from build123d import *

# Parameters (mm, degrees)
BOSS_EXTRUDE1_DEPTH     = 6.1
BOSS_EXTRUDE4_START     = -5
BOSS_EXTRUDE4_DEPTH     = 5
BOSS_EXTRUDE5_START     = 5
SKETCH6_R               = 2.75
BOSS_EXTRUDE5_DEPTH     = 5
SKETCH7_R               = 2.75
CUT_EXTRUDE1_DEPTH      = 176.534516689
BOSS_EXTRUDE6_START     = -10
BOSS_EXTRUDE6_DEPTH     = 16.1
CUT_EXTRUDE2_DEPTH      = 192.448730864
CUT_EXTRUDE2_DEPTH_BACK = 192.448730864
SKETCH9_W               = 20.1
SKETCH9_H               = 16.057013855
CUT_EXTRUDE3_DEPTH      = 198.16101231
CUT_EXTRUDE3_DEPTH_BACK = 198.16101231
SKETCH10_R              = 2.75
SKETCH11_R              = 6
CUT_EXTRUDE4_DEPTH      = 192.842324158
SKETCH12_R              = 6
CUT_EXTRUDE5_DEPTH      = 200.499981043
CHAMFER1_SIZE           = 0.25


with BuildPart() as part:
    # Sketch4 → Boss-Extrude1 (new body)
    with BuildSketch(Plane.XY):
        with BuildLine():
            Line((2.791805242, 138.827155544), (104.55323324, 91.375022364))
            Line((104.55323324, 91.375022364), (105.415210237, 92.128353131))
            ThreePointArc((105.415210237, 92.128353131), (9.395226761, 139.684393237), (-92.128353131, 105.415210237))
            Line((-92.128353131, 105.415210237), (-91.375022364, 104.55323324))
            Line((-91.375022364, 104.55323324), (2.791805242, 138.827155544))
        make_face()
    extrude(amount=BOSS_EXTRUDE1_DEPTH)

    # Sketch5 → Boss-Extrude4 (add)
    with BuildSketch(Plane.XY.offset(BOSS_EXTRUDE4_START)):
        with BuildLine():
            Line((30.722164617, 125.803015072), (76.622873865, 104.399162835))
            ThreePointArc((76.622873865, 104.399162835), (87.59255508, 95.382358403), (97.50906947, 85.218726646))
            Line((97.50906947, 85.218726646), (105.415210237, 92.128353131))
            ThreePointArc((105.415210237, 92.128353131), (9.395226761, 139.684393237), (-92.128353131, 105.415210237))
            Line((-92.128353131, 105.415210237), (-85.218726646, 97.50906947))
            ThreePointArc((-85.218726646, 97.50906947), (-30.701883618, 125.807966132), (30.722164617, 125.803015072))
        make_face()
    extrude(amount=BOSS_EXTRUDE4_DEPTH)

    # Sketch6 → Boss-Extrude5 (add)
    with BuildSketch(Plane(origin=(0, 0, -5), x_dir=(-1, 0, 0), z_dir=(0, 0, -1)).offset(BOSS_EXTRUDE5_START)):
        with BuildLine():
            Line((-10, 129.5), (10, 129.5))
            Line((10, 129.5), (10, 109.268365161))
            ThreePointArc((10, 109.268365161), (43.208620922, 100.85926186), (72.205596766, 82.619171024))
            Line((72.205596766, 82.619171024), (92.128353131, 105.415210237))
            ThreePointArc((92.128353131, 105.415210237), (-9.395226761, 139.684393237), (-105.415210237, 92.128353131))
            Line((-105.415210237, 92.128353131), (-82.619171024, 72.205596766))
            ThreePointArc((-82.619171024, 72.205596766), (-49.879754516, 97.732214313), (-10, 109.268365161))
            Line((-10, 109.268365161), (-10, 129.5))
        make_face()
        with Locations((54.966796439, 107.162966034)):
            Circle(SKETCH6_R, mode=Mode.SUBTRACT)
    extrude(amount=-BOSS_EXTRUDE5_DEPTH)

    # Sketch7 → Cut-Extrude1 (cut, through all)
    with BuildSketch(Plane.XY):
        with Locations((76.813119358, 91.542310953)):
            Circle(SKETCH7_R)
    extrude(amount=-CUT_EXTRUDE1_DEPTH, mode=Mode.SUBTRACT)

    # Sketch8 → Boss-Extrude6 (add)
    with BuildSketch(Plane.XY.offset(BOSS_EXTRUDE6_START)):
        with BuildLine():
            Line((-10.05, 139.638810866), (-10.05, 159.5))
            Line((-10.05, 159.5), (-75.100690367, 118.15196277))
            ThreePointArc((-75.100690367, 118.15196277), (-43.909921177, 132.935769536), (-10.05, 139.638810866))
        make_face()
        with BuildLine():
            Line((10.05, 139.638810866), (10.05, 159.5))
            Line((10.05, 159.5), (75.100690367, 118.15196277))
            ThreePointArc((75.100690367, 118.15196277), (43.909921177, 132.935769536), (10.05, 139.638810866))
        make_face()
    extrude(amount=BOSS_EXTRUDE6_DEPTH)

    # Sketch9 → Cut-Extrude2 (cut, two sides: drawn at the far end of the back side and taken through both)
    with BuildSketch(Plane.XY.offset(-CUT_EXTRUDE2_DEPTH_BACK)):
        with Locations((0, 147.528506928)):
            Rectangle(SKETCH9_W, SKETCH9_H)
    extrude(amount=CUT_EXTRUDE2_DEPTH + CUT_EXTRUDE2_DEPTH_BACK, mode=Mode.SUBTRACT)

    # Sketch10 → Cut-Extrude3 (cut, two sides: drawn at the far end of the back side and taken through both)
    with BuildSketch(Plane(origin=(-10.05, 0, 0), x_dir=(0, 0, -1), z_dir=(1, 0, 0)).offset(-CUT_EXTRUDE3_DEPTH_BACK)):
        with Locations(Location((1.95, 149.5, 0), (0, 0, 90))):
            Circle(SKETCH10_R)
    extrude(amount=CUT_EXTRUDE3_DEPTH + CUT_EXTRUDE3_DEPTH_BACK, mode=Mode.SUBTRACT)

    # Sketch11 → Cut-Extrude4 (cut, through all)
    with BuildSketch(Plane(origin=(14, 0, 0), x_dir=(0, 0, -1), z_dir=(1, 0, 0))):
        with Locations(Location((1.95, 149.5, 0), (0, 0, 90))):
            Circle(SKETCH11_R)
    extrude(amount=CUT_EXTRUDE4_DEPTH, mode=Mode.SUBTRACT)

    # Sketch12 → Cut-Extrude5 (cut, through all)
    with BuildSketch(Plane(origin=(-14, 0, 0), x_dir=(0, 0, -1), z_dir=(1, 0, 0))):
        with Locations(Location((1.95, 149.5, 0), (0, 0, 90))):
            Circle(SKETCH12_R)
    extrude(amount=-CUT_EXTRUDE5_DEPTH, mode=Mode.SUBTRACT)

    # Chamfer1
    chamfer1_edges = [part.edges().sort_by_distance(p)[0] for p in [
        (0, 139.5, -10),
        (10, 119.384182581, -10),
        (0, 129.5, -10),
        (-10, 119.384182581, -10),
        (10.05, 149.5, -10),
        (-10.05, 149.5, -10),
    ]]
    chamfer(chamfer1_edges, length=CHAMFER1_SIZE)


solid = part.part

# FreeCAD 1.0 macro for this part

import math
import FreeCAD as App
import Part
import Sketcher
Q = App.Units.Quantity


def edges_at(feature, points):
    """Names of the edges that pass closest to the given points."""
    edges = feature.Shape.Edges
    near = lambda p: min(range(len(edges)), key=lambda i: edges[i].distToShape(Part.Vertex(*p))[0])
    return sorted({f"Edge{near(p) + 1}" for p in points})

doc = App.newDocument("Part")
params = doc.addObject("Spreadsheet::Sheet", "Params")
for row, (alias, value) in enumerate([
    ("sketch1_radius", "140 mm"),
    ("pad1_length", "6.1 mm"),
    ("sketch2_radius", "140 mm"),
    ("sketch2_radius2", "129.5 mm"),
    ("pad2_length", "5 mm"),
    ("sketch3_radius", "140 mm"),
    ("sketch3_diameter", "5.5 mm"),
    ("sketch3_width", "20 mm"),
    ("pad3_length", "5 mm"),
    ("sketch4_diameter", "5.5 mm"),
    ("sketch5_radius", "140 mm"),
    ("pad4_length", "16.1 mm"),
    ("sketch6_width", "20.1 mm"),
    ("sketch7_diameter", "5.5 mm"),
    ("sketch8_diameter", "12 mm"),
    ("sketch9_diameter", "12 mm"),
    ("chamfer_size", "0.25 mm"),
], start=1):
    params.set(f"A{row}", alias)
    params.set(f"B{row}", "=" + value)
    params.setAlias(f"B{row}", alias)

body = doc.addObject("PartDesign::Body", "Body")

# Sketch on XY plane
sketch1 = doc.addObject("Sketcher::SketchObject", "Sketch")
body.addObject(sketch1)
sketch1.AttachmentSupport = (doc.XY_Plane, [""])
sketch1.MapMode = "FlatFace"
sketch1.addGeometry(Part.LineSegment(App.Vector(2.8, 138.8, 0), App.Vector(104.6, 91.4, 0)), False)
sketch1.addGeometry(Part.LineSegment(App.Vector(104.6, 91.4, 0), App.Vector(105.4, 92.1, 0)), False)
sketch1.addGeometry(Part.ArcOfCircle(Part.Circle(App.Vector(0, 0, 0), App.Vector(0, 0, 1), 140), math.radians(41), math.radians(131)), False)
sketch1.addGeometry(Part.LineSegment(App.Vector(-92.1, 105.4, 0), App.Vector(-91.4, 104.6, 0)), False)
sketch1.addGeometry(Part.LineSegment(App.Vector(-91.4, 104.6, 0), App.Vector(2.8, 138.8, 0)), False)
sketch1.addConstraint(Sketcher.Constraint("Coincident", 0, 2, 1, 1))
sketch1.addConstraint(Sketcher.Constraint("Coincident", 1, 2, 2, 1))
sketch1.addConstraint(Sketcher.Constraint("Coincident", 2, 2, 3, 1))
sketch1.addConstraint(Sketcher.Constraint("Coincident", 3, 2, 4, 1))
sketch1.addConstraint(Sketcher.Constraint("Coincident", 4, 2, 0, 1))
sketch1.addConstraint(Sketcher.Constraint("Coincident", 2, 3, -1, 1))
sketch1.addConstraint(Sketcher.Constraint("Perpendicular", 1, 3))
sketch1.addConstraint(Sketcher.Constraint("Equal", 1, 3))
sketch1.addConstraint(Sketcher.Constraint("Radius", 2, 140.0))
sketch1.addConstraint(Sketcher.Constraint("Angle", 0, Q("-25 deg")))
sketch1.addConstraint(Sketcher.Constraint("Angle", 4, Q("20 deg")))
sketch1.addConstraint(Sketcher.Constraint("DistanceX", -1, 1, 1, 2, 105.41521))
sketch1.addConstraint(Sketcher.Constraint("DistanceY", -1, 1, 2, 2, 105.41521))
sketch1.addConstraint(Sketcher.Constraint("DistanceY", 0, 2, 1, 2, 0.753331))
sketch1.addConstraint(Sketcher.Constraint("DistanceY", 0, 2, 3, 2, 13.178211))
sketch1.setExpression("Constraints[8]", "Params.sketch1_radius")
pad1 = doc.addObject("PartDesign::Pad", "Pad")
body.addObject(pad1)
pad1.Profile = sketch1
pad1.setExpression("Length", "Params.pad1_length")

# Sketch on XY plane
sketch2 = doc.addObject("Sketcher::SketchObject", "Sketch001")
body.addObject(sketch2)
sketch2.AttachmentSupport = (doc.XY_Plane, [""])
sketch2.MapMode = "FlatFace"
sketch2.AttachmentOffset = App.Placement(App.Vector(0, 0, -5), App.Rotation())
sketch2.addGeometry(Part.LineSegment(App.Vector(31, 126, 0), App.Vector(77, 104, 0)), False)
sketch2.addGeometry(Part.ArcOfCircle(Part.Circle(App.Vector(0, 0, 0), App.Vector(0, 0, 1), 130), math.radians(41.15), math.radians(53.72)), False)
sketch2.addGeometry(Part.LineSegment(App.Vector(98, 85, 0), App.Vector(105, 92, 0)), False)
sketch2.addGeometry(Part.ArcOfCircle(Part.Circle(App.Vector(0, 0, 0), App.Vector(0, 0, 1), 140), math.radians(41), math.radians(131)), False)
sketch2.addGeometry(Part.LineSegment(App.Vector(-92, 105, 0), App.Vector(-85, 98, 0)), False)
sketch2.addGeometry(Part.ArcOfCircle(Part.Circle(App.Vector(0, 0, 0), App.Vector(0, 0, 1), 130), math.radians(76), math.radians(131)), False)
sketch2.addConstraint(Sketcher.Constraint("Coincident", 0, 2, 1, 2))
sketch2.addConstraint(Sketcher.Constraint("Coincident", 1, 1, 2, 1))
sketch2.addConstraint(Sketcher.Constraint("Coincident", 2, 2, 3, 1))
sketch2.addConstraint(Sketcher.Constraint("Coincident", 3, 2, 4, 1))
sketch2.addConstraint(Sketcher.Constraint("Coincident", 4, 2, 5, 2))
sketch2.addConstraint(Sketcher.Constraint("Coincident", 5, 1, 0, 1))
sketch2.addConstraint(Sketcher.Constraint("Coincident", 1, 3, -1, 1))
sketch2.addConstraint(Sketcher.Constraint("Coincident", 3, 3, -1, 1))
sketch2.addConstraint(Sketcher.Constraint("Coincident", 5, 3, -1, 1))
sketch2.addConstraint(Sketcher.Constraint("Equal", 1, 5))
sketch2.addConstraint(Sketcher.Constraint("Perpendicular", 2, 4))
sketch2.addConstraint(Sketcher.Constraint("Radius", 3, 140.0))
sketch2.addConstraint(Sketcher.Constraint("Radius", 1, 129.5))
sketch2.addConstraint(Sketcher.Constraint("Angle", 0, Q("-25 deg")))
sketch2.addConstraint(Sketcher.Constraint("DistanceX", 4, 2, 0, 2, 161.841601))
sketch2.addConstraint(Sketcher.Constraint("Distance", 0, 50.645829))
sketch2.addConstraint(Sketcher.Constraint("DistanceX", -1, 1, 1, 1, 97.509069))
sketch2.addConstraint(Sketcher.Constraint("DistanceX", -1, 1, 2, 2, 105.41521))
sketch2.setExpression("Constraints[11]", "Params.sketch2_radius")
sketch2.setExpression("Constraints[12]", "Params.sketch2_radius2")
pad2 = doc.addObject("PartDesign::Pad", "Pad001")
body.addObject(pad2)
pad2.Profile = sketch2
pad2.setExpression("Length", "Params.pad2_length")

# Sketch on XY plane
sketch3 = doc.addObject("Sketcher::SketchObject", "Sketch002")
body.addObject(sketch3)
sketch3.AttachmentSupport = (doc.XY_Plane, [""])
sketch3.MapMode = "FlatFace"
sketch3.AttachmentOffset = App.Placement(App.Vector(0, 0, -10), App.Rotation())
sketch3.addGeometry(Part.LineSegment(App.Vector(10, 129.5, 0), App.Vector(-10, 129.5, 0)), False)
sketch3.addGeometry(Part.LineSegment(App.Vector(-10, 129.5, 0), App.Vector(-10, 109.3, 0)), False)
sketch3.addGeometry(Part.ArcOfCircle(Part.Circle(App.Vector(0, 0, 0), App.Vector(0, 0, 1), 109.7), math.radians(95), math.radians(131)), False)
sketch3.addGeometry(Part.LineSegment(App.Vector(-72.2, 82.6, 0), App.Vector(-92.1, 105.4, 0)), False)
sketch3.addGeometry(Part.ArcOfCircle(Part.Circle(App.Vector(0, 0, 0), App.Vector(0, 0, 1), 140), math.radians(41), math.radians(131)), False)
sketch3.addGeometry(Part.LineSegment(App.Vector(105.4, 92.1, 0), App.Vector(82.6, 72.2, 0)), False)
sketch3.addGeometry(Part.ArcOfCircle(Part.Circle(App.Vector(0, 0, 0), App.Vector(0, 0, 1), 109.7), math.radians(41), math.radians(85)), False)
sketch3.addGeometry(Part.LineSegment(App.Vector(10, 109.3, 0), App.Vector(10, 129.5, 0)), False)
sketch3.addGeometry(Part.Circle(App.Vector(-55, 107.2, 0), App.Vector(0, 0, 1), 2.8), False)
sketch3.addConstraint(Sketcher.Constraint("Coincident", 0, 2, 1, 1))
sketch3.addConstraint(Sketcher.Constraint("Coincident", 1, 2, 2, 1))
sketch3.addConstraint(Sketcher.Constraint("Coincident", 2, 2, 3, 1))
sketch3.addConstraint(Sketcher.Constraint("Coincident", 3, 2, 4, 2))
sketch3.addConstraint(Sketcher.Constraint("Coincident", 4, 1, 5, 1))
sketch3.addConstraint(Sketcher.Constraint("Coincident", 5, 2, 6, 1))
sketch3.addConstraint(Sketcher.Constraint("Coincident", 6, 2, 7, 1))
sketch3.addConstraint(Sketcher.Constraint("Coincident", 7, 2, 0, 1))
sketch3.addConstraint(Sketcher.Constraint("Horizontal", 0))
sketch3.addConstraint(Sketcher.Constraint("Vertical", 1))
sketch3.addConstraint(Sketcher.Constraint("Vertical", 7))
sketch3.addConstraint(Sketcher.Constraint("Coincident", 2, 3, -1, 1))
sketch3.addConstraint(Sketcher.Constraint("Coincident", 4, 3, -1, 1))
sketch3.addConstraint(Sketcher.Constraint("Coincident", 6, 3, -1, 1))
sketch3.addConstraint(Sketcher.Constraint("Equal", 2, 6))
sketch3.addConstraint(Sketcher.Constraint("Perpendicular", 3, 5))
sketch3.addConstraint(Sketcher.Constraint("Horizontal", 1, 2, 6, 2))
sketch3.addConstraint(Sketcher.Constraint("Radius", 4, 140.0))
sketch3.addConstraint(Sketcher.Constraint("Diameter", 8, 5.5))
sketch3.addConstraint(Sketcher.Constraint("DistanceX", 0, 2, 0, 1, 20.0))
sketch3.addConstraint(Sketcher.Constraint("Radius", 2, 109.725))
sketch3.addConstraint(Sketcher.Constraint("DistanceY", -1, 1, 0, 2, 129.5))
sketch3.addConstraint(Sketcher.Constraint("DistanceY", 8, 3, 1, 2, 2.105399))
sketch3.addConstraint(Sketcher.Constraint("DistanceX", 2, 2, 8, 3, 17.2388))
sketch3.addConstraint(Sketcher.Constraint("DistanceY", -1, 1, 2, 2, 82.619171))
sketch3.addConstraint(Sketcher.Constraint("DistanceY", -1, 1, 3, 2, 105.41521))
sketch3.addConstraint(Sketcher.Constraint("DistanceX", -1, 1, 4, 1, 105.41521))
sketch3.setExpression("Constraints[17]", "Params.sketch3_radius")
sketch3.setExpression("Constraints[18]", "Params.sketch3_diameter")
sketch3.setExpression("Constraints[19]", "Params.sketch3_width")
pad3 = doc.addObject("PartDesign::Pad", "Pad002")
body.addObject(pad3)
pad3.Profile = sketch3
pad3.setExpression("Length", "Params.pad3_length")

# Sketch on XY plane
sketch4 = doc.addObject("Sketcher::SketchObject", "Sketch003")
body.addObject(sketch4)
sketch4.AttachmentSupport = (doc.XY_Plane, [""])
sketch4.MapMode = "FlatFace"
sketch4.addGeometry(Part.Circle(App.Vector(76.8, 91.5, 0), App.Vector(0, 0, 1), 2.8), False)
sketch4.addConstraint(Sketcher.Constraint("Diameter", 0, 5.5))
sketch4.addConstraint(Sketcher.Constraint("DistanceX", -1, 1, 0, 3, 76.813119))
sketch4.addConstraint(Sketcher.Constraint("DistanceY", -1, 1, 0, 3, 91.542311))
sketch4.setExpression("Constraints[0]", "Params.sketch4_diameter")
pocket1 = doc.addObject("PartDesign::Pocket", "Pocket")
body.addObject(pocket1)
pocket1.Profile = sketch4
pocket1.Type = "ThroughAll"

# Sketch on XY plane
sketch5 = doc.addObject("Sketcher::SketchObject", "Sketch004")
body.addObject(sketch5)
sketch5.AttachmentSupport = (doc.XY_Plane, [""])
sketch5.MapMode = "FlatFace"
sketch5.AttachmentOffset = App.Placement(App.Vector(0, 0, -10), App.Rotation())
sketch5.addGeometry(Part.LineSegment(App.Vector(-10, 140, 0), App.Vector(-10, 160, 0)), False)
sketch5.addGeometry(Part.LineSegment(App.Vector(-10, 160, 0), App.Vector(-75, 118, 0)), False)
sketch5.addGeometry(Part.ArcOfCircle(Part.Circle(App.Vector(0, 0, 0), App.Vector(0, 0, 1), 140), math.radians(94), math.radians(122)), False)
sketch5.addGeometry(Part.LineSegment(App.Vector(10, 160, 0), App.Vector(10, 140, 0)), False)
sketch5.addGeometry(Part.ArcOfCircle(Part.Circle(App.Vector(0, 0, 0), App.Vector(0, 0, 1), 140), math.radians(58), math.radians(86)), False)
sketch5.addGeometry(Part.LineSegment(App.Vector(75, 118, 0), App.Vector(10, 160, 0)), False)
sketch5.addConstraint(Sketcher.Constraint("Coincident", 0, 2, 1, 1))
sketch5.addConstraint(Sketcher.Constraint("Tangent", 1, 2, 2, 2))
sketch5.addConstraint(Sketcher.Constraint("Coincident", 2, 1, 0, 1))
sketch5.addConstraint(Sketcher.Constraint("Coincident", 3, 2, 4, 2))
sketch5.addConstraint(Sketcher.Constraint("Tangent", 4, 1, 5, 1))
sketch5.addConstraint(Sketcher.Constraint("Coincident", 5, 2, 3, 1))
sketch5.addConstraint(Sketcher.Constraint("Vertical", 0))
sketch5.addConstraint(Sketcher.Constraint("Vertical", 3))
sketch5.addConstraint(Sketcher.Constraint("Coincident", 2, 3, -1, 1))
sketch5.addConstraint(Sketcher.Constraint("Coincident", 4, 3, -1, 1))
sketch5.addConstraint(Sketcher.Constraint("Equal", 2, 4))
sketch5.addConstraint(Sketcher.Constraint("Symmetric", 0, 2, 5, 2, -2))
sketch5.addConstraint(Sketcher.Constraint("Radius", 2, 140.0))
sketch5.addConstraint(Sketcher.Constraint("DistanceY", -1, 1, 0, 2, 159.5))
sketch5.addConstraint(Sketcher.Constraint("DistanceX", 2, 1, 3, 2, 20.1))
sketch5.setExpression("Constraints[12]", "Params.sketch5_radius")
pad4 = doc.addObject("PartDesign::Pad", "Pad003")
body.addObject(pad4)
pad4.Profile = sketch5
pad4.setExpression("Length", "Params.pad4_length")

# Sketch on XY plane
sketch6 = doc.addObject("Sketcher::SketchObject", "Sketch005")
body.addObject(sketch6)
sketch6.AttachmentSupport = (doc.XY_Plane, [""])
sketch6.MapMode = "FlatFace"
sketch6.addGeometry(Part.LineSegment(App.Vector(-10, 156, 0), App.Vector(-10, 140, 0)), False)
sketch6.addGeometry(Part.LineSegment(App.Vector(-10, 140, 0), App.Vector(10, 140, 0)), False)
sketch6.addGeometry(Part.LineSegment(App.Vector(10, 140, 0), App.Vector(10, 156, 0)), False)
sketch6.addGeometry(Part.LineSegment(App.Vector(10, 156, 0), App.Vector(-10, 156, 0)), False)
sketch6.addConstraint(Sketcher.Constraint("Coincident", 0, 2, 1, 1))
sketch6.addConstraint(Sketcher.Constraint("Coincident", 1, 2, 2, 1))
sketch6.addConstraint(Sketcher.Constraint("Coincident", 2, 2, 3, 1))
sketch6.addConstraint(Sketcher.Constraint("Coincident", 3, 2, 0, 1))
sketch6.addConstraint(Sketcher.Constraint("Vertical", 0))
sketch6.addConstraint(Sketcher.Constraint("Horizontal", 1))
sketch6.addConstraint(Sketcher.Constraint("Vertical", 2))
sketch6.addConstraint(Sketcher.Constraint("Horizontal", 3))
sketch6.addConstraint(Sketcher.Constraint("DistanceX", 1, 1, 1, 2, 20.1))
sketch6.addConstraint(Sketcher.Constraint("DistanceY", -1, 1, 0, 2, 139.5))
sketch6.addConstraint(Sketcher.Constraint("DistanceX", 0, 2, -1, 1, 10.05))
sketch6.addConstraint(Sketcher.Constraint("DistanceY", 0, 2, 0, 1, 16.057014))
sketch6.setExpression("Constraints[8]", "Params.sketch6_width")
pocket2 = doc.addObject("PartDesign::Pocket", "Pocket001")
body.addObject(pocket2)
pocket2.Profile = sketch6
pocket2.Type = "ThroughAll"
pocket2.Midplane = True

# Sketch on YZ plane
sketch7 = doc.addObject("Sketcher::SketchObject", "Sketch006")
body.addObject(sketch7)
sketch7.AttachmentSupport = (doc.YZ_Plane, [""])
sketch7.MapMode = "FlatFace"
sketch7.AttachmentOffset = App.Placement(App.Vector(0, 0, -10.05), App.Rotation())
sketch7.addGeometry(Part.Circle(App.Vector(149.5, -1.9, 0), App.Vector(0, 0, 1), 2.8), False)
sketch7.addConstraint(Sketcher.Constraint("Diameter", 0, 5.5))
sketch7.addConstraint(Sketcher.Constraint("DistanceX", -1, 1, 0, 3, 149.5))
sketch7.addConstraint(Sketcher.Constraint("DistanceY", 0, 3, -1, 1, 1.95))
sketch7.setExpression("Constraints[0]", "Params.sketch7_diameter")
pocket3 = doc.addObject("PartDesign::Pocket", "Pocket002")
body.addObject(pocket3)
pocket3.Profile = sketch7
pocket3.Type = "ThroughAll"
pocket3.Midplane = True

# Sketch on YZ plane
sketch8 = doc.addObject("Sketcher::SketchObject", "Sketch007")
body.addObject(sketch8)
sketch8.AttachmentSupport = (doc.YZ_Plane, [""])
sketch8.MapMode = "FlatFace"
sketch8.AttachmentOffset = App.Placement(App.Vector(0, 0, 14), App.Rotation())
sketch8.addGeometry(Part.Circle(App.Vector(150, -2, 0), App.Vector(0, 0, 1), 6), False)
sketch8.addConstraint(Sketcher.Constraint("Diameter", 0, 12.0))
sketch8.addConstraint(Sketcher.Constraint("DistanceX", -1, 1, 0, 3, 149.5))
sketch8.addConstraint(Sketcher.Constraint("DistanceY", 0, 3, -1, 1, 1.95))
sketch8.setExpression("Constraints[0]", "Params.sketch8_diameter")
pocket4 = doc.addObject("PartDesign::Pocket", "Pocket003")
body.addObject(pocket4)
pocket4.Profile = sketch8
pocket4.Type = "ThroughAll"
pocket4.Reversed = True

# Sketch on YZ plane
sketch9 = doc.addObject("Sketcher::SketchObject", "Sketch008")
body.addObject(sketch9)
sketch9.AttachmentSupport = (doc.YZ_Plane, [""])
sketch9.MapMode = "FlatFace"
sketch9.AttachmentOffset = App.Placement(App.Vector(0, 0, -14), App.Rotation())
sketch9.addGeometry(Part.Circle(App.Vector(150, -2, 0), App.Vector(0, 0, 1), 6), False)
sketch9.addConstraint(Sketcher.Constraint("Diameter", 0, 12.0))
sketch9.addConstraint(Sketcher.Constraint("DistanceX", -1, 1, 0, 3, 149.5))
sketch9.addConstraint(Sketcher.Constraint("DistanceY", 0, 3, -1, 1, 1.95))
sketch9.setExpression("Constraints[0]", "Params.sketch9_diameter")
pocket5 = doc.addObject("PartDesign::Pocket", "Pocket004")
body.addObject(pocket5)
pocket5.Profile = sketch9
pocket5.Type = "ThroughAll"
doc.recompute()

chamfer = doc.addObject("PartDesign::Chamfer", "Chamfer")
body.addObject(chamfer)
chamfer.Base = (pocket5, edges_at(pocket5, [
    (0, 139.5, -10),
    (10, 119.384, -10),
    (0, 129.5, -10),
    (-10, 119.384, -10),
    (10.05, 149.5, -10),
    (-10.05, 149.5, -10),
]))
chamfer.setExpression("Size", "Params.chamfer_size")

doc.recompute()
